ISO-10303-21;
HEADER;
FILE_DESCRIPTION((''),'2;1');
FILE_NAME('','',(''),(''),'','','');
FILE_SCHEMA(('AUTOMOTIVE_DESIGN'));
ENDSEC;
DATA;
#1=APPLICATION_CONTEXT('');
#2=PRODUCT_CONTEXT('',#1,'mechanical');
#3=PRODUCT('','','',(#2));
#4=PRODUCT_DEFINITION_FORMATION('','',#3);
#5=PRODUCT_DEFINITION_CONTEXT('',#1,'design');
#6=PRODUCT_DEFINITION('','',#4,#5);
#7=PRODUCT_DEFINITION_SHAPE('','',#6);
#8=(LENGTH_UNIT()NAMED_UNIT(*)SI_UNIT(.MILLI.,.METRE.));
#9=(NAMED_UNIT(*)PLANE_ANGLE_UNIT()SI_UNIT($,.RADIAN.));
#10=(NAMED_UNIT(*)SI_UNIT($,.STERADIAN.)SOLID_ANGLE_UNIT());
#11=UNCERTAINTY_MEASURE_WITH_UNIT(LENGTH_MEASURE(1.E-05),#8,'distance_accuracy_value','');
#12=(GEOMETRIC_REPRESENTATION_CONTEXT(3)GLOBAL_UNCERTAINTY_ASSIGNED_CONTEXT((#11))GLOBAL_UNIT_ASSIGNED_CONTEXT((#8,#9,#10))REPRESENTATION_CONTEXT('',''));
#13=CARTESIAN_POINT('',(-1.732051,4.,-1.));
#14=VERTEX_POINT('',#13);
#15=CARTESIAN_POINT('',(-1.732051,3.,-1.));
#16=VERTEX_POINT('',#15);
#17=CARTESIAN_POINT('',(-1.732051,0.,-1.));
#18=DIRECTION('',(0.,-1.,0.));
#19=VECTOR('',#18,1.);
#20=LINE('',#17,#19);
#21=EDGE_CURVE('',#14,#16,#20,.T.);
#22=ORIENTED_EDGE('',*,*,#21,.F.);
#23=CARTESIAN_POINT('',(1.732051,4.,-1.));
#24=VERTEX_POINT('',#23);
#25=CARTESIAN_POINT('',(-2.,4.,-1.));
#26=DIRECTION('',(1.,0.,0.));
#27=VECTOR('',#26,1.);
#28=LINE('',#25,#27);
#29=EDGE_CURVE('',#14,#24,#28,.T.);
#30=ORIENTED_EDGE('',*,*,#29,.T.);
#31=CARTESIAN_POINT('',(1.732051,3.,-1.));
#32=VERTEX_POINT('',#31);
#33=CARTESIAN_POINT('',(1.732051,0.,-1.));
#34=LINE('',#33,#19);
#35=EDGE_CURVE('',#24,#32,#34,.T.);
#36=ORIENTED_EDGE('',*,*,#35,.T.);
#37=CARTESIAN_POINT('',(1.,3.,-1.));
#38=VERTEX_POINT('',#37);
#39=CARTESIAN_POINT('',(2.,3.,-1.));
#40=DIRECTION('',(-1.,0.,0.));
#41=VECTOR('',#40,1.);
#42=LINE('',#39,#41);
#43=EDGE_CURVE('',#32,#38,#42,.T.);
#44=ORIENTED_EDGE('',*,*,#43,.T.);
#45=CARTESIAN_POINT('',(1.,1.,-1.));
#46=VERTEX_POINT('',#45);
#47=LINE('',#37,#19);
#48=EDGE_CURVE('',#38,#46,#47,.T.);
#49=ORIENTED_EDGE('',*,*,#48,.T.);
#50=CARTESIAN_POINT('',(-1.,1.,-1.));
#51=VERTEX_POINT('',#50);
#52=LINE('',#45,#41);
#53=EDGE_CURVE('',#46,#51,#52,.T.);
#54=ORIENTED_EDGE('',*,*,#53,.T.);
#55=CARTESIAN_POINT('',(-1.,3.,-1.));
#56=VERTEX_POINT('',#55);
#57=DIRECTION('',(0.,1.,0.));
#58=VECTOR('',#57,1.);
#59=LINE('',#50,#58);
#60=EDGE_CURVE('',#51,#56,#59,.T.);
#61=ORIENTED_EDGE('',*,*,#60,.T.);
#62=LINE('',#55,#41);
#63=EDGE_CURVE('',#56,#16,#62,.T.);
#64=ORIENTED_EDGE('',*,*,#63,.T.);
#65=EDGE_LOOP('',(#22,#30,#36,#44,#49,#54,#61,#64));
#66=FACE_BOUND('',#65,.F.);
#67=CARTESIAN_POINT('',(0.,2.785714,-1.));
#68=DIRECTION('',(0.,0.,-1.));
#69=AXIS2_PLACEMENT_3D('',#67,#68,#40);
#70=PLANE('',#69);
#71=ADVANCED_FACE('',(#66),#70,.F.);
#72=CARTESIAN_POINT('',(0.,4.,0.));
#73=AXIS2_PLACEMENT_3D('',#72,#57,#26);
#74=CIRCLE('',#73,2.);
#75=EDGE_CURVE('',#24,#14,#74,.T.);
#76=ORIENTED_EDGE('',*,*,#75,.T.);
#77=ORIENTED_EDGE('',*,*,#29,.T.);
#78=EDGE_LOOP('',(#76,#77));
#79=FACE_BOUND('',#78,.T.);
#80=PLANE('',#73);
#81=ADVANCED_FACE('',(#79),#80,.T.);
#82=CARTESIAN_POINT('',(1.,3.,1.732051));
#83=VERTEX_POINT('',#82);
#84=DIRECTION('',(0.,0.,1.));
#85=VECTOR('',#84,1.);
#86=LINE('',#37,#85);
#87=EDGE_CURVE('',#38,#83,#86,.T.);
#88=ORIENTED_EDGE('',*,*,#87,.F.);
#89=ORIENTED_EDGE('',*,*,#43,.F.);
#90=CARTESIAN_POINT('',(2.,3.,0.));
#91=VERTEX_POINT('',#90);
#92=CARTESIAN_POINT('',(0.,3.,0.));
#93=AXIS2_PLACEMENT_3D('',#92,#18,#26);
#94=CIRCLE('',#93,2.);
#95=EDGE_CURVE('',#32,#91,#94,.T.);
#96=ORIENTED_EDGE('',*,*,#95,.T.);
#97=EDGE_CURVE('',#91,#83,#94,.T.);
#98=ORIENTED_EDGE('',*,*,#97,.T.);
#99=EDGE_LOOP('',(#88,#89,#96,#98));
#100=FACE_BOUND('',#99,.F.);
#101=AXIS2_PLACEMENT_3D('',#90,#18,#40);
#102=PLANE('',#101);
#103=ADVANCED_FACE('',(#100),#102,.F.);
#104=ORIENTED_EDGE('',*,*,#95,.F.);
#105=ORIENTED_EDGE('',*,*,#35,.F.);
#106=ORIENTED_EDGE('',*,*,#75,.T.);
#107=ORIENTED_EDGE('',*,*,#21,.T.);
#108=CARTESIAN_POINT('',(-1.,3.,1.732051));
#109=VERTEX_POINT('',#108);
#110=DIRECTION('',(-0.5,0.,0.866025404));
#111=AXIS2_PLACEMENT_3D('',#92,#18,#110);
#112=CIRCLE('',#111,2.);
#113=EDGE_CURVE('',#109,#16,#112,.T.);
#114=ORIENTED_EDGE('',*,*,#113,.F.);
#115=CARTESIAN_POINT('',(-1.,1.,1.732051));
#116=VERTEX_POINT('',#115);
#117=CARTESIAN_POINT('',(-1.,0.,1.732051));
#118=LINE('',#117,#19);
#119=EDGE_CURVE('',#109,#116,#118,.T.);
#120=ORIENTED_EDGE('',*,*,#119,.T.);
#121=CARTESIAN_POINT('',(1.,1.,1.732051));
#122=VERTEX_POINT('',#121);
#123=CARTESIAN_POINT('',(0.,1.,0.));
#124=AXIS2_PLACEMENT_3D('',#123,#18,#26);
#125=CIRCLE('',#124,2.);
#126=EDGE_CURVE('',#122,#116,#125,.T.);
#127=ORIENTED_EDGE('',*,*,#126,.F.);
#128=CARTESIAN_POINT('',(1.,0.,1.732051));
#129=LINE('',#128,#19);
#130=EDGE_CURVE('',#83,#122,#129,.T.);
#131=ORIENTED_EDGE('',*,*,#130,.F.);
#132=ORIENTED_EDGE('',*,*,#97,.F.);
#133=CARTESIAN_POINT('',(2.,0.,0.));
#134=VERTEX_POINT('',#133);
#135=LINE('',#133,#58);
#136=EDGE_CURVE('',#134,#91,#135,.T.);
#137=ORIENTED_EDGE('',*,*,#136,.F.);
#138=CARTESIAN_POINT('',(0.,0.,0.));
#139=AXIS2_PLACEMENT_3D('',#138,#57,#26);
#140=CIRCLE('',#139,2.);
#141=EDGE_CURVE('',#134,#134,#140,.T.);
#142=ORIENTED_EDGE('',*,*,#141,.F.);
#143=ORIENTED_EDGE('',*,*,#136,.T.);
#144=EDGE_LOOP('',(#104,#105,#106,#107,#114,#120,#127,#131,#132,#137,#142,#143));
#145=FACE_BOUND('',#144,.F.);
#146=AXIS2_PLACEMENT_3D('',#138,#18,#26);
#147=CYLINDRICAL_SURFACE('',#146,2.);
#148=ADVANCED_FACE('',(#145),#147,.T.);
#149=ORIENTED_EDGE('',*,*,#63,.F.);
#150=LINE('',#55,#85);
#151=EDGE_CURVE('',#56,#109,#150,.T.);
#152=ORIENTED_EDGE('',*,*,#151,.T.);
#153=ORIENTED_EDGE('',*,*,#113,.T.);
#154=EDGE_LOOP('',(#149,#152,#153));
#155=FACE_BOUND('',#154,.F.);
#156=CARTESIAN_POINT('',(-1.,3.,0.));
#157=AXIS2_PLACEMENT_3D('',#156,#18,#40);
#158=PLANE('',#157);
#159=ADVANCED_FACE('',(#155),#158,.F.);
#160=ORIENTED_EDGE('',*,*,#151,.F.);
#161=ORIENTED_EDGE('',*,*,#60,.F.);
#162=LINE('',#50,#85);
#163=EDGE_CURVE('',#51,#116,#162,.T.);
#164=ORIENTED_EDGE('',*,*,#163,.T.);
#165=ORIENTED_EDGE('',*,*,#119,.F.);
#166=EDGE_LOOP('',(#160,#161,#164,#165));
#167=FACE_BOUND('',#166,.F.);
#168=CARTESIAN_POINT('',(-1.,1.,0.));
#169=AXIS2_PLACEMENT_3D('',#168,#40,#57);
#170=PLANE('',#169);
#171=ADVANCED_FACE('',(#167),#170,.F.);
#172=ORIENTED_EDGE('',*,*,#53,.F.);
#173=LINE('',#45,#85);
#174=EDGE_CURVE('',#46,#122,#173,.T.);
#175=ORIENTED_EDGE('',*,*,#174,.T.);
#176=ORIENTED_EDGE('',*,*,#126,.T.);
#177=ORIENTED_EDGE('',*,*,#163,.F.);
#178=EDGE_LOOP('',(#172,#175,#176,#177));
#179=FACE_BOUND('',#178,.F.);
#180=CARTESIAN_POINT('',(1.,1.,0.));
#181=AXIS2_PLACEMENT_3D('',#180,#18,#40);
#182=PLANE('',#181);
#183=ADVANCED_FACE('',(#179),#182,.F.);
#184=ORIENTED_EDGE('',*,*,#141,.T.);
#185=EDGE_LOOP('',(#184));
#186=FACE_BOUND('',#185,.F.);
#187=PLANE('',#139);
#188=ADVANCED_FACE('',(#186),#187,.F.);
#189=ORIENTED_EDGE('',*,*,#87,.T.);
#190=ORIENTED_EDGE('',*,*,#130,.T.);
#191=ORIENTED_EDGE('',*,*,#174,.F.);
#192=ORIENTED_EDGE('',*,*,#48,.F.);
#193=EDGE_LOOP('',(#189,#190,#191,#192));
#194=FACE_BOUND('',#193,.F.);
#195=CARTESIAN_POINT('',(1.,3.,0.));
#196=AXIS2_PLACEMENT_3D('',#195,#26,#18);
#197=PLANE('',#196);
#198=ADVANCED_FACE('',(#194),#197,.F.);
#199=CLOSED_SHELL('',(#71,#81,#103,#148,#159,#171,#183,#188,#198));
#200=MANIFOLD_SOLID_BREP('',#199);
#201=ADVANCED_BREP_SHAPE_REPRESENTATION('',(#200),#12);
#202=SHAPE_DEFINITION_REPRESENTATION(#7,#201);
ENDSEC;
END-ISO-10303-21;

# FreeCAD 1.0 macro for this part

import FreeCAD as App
import Part
import Sketcher
Q = App.Units.Quantity


def add_polygon(sketch, points):
    """Adds a closed chain of lines whose ends are joined by coincident constraints."""
    first, n = sketch.GeometryCount, len(points)
    for a, b in zip(points, points[1:] + points[:1]):
        sketch.addGeometry(Part.LineSegment(App.Vector(*a, 0), App.Vector(*b, 0)), False)
    for i in range(n):
        sketch.addConstraint(Sketcher.Constraint("Coincident", first + i, 2, first + (i + 1) % n, 1))

doc = App.newDocument("Part")
body = doc.addObject("PartDesign::Body", "Body")

sketch1 = doc.addObject("Sketcher::SketchObject", "Sketch")
body.addObject(sketch1)
sketch1.AttachmentSupport = (doc.XZ_Plane, [""])
sketch1.MapMode = "FlatFace"
sketch1.addGeometry(Part.Circle(App.Vector(0, 0, 0), App.Vector(0, 0, 1), 2), False)
sketch1.addConstraint([
    Sketcher.Constraint("Coincident", 0, 3, -1, 1),
    Sketcher.Constraint("Diameter", 0, Q("4 mm")),
])
pad1 = doc.addObject("PartDesign::Pad", "Pad")
body.addObject(pad1)
pad1.Profile = sketch1
pad1.Length = 4
pad1.Reversed = True

sketch2 = doc.addObject("Sketcher::SketchObject", "Sketch001")
body.addObject(sketch2)
sketch2.AttachmentSupport = (doc.XY_Plane, [""])
sketch2.MapMode = "FlatFace"
add_polygon(sketch2, [(2, 4), (-2, 4), (-2, 3), (-1, 3), (-1, 1), (1, 1), (1, 3), (2, 3)])
sketch2.addConstraint([
    Sketcher.Constraint("Horizontal", 0),
    Sketcher.Constraint("Vertical", 1),
    Sketcher.Constraint("Horizontal", 2),
    Sketcher.Constraint("Vertical", 3),
    Sketcher.Constraint("Horizontal", 4),
    Sketcher.Constraint("Vertical", 5),
    Sketcher.Constraint("Horizontal", 6),
    Sketcher.Constraint("Vertical", 7),
    Sketcher.Constraint("Symmetric", 2, 2, 5, 2, -2),
    Sketcher.Constraint("Equal", 2, 6),
    Sketcher.Constraint("Equal", 6, 1),
    Sketcher.Constraint("Equal", 4, 3),
    Sketcher.Constraint("DistanceX", 0, 2, 0, 1, Q("4 mm")),
    Sketcher.Constraint("DistanceX", 2, 1, 2, 2, Q("1 mm")),
    Sketcher.Constraint("DistanceY", -1, 1, 0, 2, Q("4 mm")),
])
pocket1 = doc.addObject("PartDesign::Pocket", "Pocket")
body.addObject(pocket1)
pocket1.Profile = sketch2
pocket1.Type = "TwoLengths"
pocket1.Length = 3
pocket1.Length2 = 1
pocket1.Reversed = True

doc.recompute()
